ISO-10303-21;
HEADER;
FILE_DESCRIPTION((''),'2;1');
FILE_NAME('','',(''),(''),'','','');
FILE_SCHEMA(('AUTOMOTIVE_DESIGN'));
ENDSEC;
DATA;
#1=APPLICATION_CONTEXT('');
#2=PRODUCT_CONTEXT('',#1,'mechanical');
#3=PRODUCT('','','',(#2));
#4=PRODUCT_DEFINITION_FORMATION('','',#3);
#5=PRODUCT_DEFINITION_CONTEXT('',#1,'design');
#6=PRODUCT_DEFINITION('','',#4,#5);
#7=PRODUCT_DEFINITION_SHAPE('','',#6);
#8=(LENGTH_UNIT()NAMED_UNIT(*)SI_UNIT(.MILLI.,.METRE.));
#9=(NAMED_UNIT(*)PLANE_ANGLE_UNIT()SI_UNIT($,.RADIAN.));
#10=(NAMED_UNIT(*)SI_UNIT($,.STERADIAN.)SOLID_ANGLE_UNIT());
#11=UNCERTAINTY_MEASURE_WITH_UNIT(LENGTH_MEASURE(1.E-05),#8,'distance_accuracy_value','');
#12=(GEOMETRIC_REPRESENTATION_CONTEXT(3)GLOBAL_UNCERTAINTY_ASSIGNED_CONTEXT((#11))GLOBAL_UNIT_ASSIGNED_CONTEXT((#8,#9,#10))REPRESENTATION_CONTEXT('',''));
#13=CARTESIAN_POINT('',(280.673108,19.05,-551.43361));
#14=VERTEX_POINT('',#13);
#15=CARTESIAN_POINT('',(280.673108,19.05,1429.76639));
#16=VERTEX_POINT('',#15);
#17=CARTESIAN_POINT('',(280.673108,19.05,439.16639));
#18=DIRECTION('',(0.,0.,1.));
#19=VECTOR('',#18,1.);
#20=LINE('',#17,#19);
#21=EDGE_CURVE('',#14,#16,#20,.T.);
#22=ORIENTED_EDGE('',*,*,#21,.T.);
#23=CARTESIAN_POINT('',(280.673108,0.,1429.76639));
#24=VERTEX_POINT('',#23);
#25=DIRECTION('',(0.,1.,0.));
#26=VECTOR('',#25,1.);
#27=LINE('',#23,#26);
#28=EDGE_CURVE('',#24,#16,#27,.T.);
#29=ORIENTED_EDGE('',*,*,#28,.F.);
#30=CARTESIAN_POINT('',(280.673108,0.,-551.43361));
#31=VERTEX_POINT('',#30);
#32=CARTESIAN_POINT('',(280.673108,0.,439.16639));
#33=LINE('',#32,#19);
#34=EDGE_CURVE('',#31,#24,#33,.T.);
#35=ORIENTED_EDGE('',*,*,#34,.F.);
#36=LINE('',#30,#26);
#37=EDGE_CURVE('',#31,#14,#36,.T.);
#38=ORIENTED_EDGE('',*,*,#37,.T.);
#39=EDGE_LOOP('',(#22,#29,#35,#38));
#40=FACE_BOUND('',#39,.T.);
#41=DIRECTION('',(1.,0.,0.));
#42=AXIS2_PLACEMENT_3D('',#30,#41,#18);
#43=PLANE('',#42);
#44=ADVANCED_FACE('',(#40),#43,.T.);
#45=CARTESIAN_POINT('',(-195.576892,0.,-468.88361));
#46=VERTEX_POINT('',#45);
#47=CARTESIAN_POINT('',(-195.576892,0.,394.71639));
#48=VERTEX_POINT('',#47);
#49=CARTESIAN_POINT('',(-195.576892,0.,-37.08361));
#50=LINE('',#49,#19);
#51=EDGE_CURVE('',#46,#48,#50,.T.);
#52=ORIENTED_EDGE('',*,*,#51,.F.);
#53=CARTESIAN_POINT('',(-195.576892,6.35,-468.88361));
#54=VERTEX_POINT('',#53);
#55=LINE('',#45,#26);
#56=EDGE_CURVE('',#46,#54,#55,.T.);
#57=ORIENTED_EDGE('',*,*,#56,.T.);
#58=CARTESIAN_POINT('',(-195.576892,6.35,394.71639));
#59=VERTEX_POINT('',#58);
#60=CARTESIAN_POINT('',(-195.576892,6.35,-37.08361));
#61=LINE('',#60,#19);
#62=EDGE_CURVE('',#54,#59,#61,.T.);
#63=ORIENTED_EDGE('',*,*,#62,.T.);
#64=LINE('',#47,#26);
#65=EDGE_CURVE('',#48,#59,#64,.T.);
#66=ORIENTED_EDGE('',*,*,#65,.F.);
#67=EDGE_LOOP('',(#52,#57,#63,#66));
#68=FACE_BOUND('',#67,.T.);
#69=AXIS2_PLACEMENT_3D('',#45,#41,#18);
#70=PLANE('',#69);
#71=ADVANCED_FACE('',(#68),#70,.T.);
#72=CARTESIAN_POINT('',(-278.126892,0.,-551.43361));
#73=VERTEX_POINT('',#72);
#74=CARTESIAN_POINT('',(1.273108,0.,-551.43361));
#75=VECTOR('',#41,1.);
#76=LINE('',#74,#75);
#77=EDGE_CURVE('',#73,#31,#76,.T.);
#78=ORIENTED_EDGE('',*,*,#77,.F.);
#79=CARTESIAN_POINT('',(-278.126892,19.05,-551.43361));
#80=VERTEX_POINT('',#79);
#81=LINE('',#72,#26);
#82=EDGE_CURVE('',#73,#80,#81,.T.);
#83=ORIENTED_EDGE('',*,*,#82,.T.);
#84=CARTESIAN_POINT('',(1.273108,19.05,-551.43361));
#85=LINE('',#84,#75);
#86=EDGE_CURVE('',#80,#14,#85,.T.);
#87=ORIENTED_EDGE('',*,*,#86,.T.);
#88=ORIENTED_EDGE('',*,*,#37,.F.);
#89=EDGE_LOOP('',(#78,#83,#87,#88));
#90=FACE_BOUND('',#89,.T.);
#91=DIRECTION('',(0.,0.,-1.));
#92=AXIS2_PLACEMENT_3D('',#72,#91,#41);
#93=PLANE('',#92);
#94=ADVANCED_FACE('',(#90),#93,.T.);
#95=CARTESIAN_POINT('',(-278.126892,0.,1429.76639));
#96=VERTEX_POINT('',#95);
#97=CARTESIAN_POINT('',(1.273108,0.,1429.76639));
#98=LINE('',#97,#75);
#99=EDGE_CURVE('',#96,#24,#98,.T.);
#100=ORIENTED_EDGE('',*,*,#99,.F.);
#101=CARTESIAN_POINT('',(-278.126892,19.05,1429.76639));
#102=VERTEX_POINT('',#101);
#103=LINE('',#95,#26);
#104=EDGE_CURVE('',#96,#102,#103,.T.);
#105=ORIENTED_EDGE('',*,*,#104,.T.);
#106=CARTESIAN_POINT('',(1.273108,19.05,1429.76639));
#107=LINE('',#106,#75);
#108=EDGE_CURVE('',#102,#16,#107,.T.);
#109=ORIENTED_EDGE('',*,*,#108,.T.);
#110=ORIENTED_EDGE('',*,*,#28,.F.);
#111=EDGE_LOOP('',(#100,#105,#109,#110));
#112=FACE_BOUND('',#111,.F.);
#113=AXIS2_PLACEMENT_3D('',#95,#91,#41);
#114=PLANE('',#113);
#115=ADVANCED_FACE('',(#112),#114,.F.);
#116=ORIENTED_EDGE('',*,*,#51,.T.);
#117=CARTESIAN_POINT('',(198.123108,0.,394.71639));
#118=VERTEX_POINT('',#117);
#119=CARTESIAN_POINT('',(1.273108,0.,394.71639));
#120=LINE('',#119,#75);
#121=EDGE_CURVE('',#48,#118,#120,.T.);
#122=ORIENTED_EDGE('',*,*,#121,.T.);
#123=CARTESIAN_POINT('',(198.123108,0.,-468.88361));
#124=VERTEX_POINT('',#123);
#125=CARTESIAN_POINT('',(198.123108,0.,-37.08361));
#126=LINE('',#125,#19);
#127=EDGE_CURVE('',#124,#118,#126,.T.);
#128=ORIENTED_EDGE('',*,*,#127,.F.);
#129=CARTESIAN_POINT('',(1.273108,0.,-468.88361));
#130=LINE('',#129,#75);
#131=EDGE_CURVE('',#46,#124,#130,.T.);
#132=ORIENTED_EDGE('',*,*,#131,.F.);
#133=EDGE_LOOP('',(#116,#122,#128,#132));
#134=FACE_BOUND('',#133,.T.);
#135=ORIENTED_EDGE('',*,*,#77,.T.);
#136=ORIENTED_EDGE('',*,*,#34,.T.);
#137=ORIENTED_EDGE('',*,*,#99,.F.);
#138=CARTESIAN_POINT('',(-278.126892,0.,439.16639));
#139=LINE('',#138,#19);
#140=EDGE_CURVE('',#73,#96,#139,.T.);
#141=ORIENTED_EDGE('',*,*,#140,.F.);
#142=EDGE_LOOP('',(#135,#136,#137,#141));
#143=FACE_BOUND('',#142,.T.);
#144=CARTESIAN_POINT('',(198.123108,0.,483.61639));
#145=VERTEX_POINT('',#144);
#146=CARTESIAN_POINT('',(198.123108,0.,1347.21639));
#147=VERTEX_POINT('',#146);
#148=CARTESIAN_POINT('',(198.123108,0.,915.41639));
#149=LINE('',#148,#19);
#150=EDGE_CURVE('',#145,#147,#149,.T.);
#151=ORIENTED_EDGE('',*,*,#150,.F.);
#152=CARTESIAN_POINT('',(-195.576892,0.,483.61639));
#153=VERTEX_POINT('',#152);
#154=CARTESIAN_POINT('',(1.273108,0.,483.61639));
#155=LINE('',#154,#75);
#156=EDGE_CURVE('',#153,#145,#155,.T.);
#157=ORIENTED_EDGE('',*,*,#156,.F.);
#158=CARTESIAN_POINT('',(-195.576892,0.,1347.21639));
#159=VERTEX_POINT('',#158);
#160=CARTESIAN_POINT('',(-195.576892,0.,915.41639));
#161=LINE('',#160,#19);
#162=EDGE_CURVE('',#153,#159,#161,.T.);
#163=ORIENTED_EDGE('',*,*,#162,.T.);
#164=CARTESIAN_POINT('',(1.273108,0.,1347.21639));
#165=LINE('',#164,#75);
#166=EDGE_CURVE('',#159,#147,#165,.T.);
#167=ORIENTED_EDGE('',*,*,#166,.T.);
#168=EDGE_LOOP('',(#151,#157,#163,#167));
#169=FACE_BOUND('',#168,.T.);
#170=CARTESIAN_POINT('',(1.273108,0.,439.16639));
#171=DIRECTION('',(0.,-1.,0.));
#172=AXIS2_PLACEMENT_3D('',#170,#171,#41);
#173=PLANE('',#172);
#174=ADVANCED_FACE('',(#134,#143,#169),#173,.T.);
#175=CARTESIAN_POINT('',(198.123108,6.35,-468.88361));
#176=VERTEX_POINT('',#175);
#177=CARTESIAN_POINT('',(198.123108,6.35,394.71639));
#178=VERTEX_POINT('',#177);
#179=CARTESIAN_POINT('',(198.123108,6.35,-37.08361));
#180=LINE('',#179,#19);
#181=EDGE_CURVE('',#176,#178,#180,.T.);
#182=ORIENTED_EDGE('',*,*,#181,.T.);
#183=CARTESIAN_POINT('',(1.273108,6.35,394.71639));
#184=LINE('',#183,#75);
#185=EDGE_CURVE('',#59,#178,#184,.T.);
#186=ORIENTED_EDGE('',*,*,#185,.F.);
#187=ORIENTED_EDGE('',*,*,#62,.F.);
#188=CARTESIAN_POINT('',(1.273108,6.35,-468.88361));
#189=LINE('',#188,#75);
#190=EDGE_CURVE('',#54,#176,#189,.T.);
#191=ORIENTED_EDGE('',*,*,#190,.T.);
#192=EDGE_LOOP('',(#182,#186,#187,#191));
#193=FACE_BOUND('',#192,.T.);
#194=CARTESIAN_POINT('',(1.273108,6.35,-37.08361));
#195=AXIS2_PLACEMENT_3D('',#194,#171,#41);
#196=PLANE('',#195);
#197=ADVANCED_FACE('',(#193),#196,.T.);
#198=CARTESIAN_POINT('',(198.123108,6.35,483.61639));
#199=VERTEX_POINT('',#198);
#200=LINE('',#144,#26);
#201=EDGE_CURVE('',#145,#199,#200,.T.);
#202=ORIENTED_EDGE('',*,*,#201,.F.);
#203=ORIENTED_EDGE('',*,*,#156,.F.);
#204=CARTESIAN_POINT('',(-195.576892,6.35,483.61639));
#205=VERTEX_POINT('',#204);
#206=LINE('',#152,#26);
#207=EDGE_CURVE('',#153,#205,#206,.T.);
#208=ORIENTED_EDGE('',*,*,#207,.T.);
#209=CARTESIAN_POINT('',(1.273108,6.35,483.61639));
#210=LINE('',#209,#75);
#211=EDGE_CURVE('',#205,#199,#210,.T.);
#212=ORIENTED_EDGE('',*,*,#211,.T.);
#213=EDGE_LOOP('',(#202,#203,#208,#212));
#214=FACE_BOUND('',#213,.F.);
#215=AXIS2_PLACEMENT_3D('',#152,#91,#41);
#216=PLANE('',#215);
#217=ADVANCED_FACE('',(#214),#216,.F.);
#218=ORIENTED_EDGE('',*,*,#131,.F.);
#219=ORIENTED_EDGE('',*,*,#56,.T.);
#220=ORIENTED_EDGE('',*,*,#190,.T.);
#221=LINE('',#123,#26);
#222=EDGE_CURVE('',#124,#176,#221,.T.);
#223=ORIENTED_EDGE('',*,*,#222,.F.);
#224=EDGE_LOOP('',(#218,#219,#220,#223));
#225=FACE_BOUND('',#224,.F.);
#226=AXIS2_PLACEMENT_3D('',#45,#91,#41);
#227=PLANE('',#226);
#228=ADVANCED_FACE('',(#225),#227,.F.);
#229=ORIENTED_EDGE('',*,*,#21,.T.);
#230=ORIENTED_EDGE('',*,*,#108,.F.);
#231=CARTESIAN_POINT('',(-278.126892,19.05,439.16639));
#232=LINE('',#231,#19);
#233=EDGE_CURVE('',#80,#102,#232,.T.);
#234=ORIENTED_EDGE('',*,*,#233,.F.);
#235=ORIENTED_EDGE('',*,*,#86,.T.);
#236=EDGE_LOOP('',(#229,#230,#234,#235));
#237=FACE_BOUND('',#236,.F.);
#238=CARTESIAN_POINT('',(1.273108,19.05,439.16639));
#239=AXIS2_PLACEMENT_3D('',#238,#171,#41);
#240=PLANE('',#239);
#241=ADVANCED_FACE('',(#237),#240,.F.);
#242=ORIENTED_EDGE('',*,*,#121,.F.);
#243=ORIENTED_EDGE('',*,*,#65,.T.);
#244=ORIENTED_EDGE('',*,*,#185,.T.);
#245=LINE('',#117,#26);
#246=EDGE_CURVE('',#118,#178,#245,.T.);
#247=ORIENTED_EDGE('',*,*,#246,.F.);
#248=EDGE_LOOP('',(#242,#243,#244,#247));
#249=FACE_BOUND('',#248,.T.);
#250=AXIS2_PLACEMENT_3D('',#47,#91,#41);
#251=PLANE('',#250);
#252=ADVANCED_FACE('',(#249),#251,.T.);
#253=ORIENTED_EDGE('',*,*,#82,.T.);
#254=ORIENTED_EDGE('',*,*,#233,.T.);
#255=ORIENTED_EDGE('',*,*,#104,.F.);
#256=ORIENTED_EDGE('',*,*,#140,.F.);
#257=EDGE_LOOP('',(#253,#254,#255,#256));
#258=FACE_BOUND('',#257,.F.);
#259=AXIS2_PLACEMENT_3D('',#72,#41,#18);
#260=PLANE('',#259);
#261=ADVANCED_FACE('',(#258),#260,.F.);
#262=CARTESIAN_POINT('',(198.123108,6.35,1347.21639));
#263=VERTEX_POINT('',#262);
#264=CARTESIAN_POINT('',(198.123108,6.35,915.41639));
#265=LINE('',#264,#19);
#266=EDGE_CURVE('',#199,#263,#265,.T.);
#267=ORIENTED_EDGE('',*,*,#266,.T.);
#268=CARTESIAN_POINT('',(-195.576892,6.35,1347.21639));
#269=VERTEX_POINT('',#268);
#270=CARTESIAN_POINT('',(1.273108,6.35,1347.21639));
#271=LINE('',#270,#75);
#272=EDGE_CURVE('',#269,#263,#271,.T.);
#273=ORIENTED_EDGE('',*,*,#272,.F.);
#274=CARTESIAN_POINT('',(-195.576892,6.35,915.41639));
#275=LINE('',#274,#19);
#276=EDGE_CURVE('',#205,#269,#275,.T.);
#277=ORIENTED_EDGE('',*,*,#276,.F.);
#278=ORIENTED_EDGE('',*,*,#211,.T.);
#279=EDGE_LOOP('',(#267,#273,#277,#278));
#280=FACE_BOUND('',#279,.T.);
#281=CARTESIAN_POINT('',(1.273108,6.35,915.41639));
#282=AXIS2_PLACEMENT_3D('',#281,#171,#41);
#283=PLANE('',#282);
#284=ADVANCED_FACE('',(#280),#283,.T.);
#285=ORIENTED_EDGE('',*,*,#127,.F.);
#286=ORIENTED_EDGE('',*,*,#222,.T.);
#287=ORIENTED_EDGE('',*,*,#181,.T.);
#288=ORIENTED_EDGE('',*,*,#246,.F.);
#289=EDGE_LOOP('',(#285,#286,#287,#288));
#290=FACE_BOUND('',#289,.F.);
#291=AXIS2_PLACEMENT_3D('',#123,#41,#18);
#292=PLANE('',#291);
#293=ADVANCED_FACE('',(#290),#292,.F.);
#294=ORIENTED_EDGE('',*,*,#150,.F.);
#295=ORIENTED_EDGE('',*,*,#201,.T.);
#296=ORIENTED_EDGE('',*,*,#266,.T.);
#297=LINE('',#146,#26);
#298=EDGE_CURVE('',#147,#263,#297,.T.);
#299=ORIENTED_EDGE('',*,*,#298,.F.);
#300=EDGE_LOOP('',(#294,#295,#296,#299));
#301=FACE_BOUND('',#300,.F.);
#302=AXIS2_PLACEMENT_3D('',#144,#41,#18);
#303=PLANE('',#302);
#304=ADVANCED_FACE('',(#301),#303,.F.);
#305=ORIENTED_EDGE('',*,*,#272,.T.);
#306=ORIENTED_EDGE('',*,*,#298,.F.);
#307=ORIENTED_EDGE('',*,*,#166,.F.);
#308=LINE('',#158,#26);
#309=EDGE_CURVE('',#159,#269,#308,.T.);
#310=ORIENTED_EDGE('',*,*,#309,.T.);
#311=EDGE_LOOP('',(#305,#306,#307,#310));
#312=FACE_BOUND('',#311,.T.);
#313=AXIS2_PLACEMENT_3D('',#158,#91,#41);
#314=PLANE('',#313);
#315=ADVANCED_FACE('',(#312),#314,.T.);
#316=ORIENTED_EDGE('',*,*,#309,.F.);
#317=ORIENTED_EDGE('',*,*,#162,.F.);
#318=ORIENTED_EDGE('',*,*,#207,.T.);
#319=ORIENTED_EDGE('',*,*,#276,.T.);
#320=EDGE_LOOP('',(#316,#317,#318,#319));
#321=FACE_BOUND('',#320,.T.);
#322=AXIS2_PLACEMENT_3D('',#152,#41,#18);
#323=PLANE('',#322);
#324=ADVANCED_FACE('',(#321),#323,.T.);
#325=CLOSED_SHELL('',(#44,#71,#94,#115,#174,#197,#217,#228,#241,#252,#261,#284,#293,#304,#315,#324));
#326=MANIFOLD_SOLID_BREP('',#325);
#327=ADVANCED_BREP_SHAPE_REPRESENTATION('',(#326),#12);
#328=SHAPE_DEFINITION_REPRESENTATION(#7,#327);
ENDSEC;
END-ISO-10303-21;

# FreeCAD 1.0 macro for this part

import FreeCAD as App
import Part
import Sketcher

V = App.Vector
Q = App.Units.Quantity

doc = App.newDocument("Part")
params = doc.addObject("Spreadsheet::Sheet", "Params")
for row, (alias, value) in enumerate([
    ("sketch1_width", "22 in"),
    ("sketch1_height", "78 in"),
    ("pad1_length", "0.75 in"),
    ("sketch2_height", "34 in"),
    ("sketch2_width", "15.5 in"),
    ("pocket1_length", "0.25 in"),
], start=1):
    params.set(f"A{row}", alias)
    params.set(f"B{row}", "=" + value)
    params.setAlias(f"B{row}", alias)

body = doc.addObject("PartDesign::Body", "Body")

sketch1 = body.newObject("Sketcher::SketchObject", "Sketch")
sketch1.AttachmentSupport = (doc.getObject("XZ_Plane"), [""])
sketch1.MapMode = "FlatFace"
sketch1.addGeometry(Part.LineSegment(V(-278, 1430, 0), V(-278, -551, 0)), False)
sketch1.addGeometry(Part.LineSegment(V(-278, -551, 0), V(281, -551, 0)), False)
sketch1.addGeometry(Part.LineSegment(V(281, -551, 0), V(281, 1430, 0)), False)
sketch1.addGeometry(Part.LineSegment(V(281, 1430, 0), V(-278, 1430, 0)), False)
sketch1.addConstraint(Sketcher.Constraint("Coincident", 0, 2, 1, 1))
sketch1.addConstraint(Sketcher.Constraint("Coincident", 1, 2, 2, 1))
sketch1.addConstraint(Sketcher.Constraint("Coincident", 2, 2, 3, 1))
sketch1.addConstraint(Sketcher.Constraint("Coincident", 3, 2, 0, 1))
sketch1.addConstraint(Sketcher.Constraint("Vertical", 0))
sketch1.addConstraint(Sketcher.Constraint("Horizontal", 1))
sketch1.addConstraint(Sketcher.Constraint("Vertical", 2))
sketch1.addConstraint(Sketcher.Constraint("Horizontal", 3))
sketch1.addConstraint(Sketcher.Constraint("DistanceX", 1, 1, 1, 2, Q("22 in")))
sketch1.addConstraint(Sketcher.Constraint("DistanceY", 0, 2, 0, 1, Q("78 in")))
sketch1.addConstraint(Sketcher.Constraint("DistanceX", 0, 2, -1, 1, 278.126892))
sketch1.addConstraint(Sketcher.Constraint("DistanceY", 0, 2, -1, 1, 551.43361))
sketch1.setExpression("Constraints[8]", "Params.sketch1_width")
sketch1.setExpression("Constraints[9]", "Params.sketch1_height")
pad1 = body.newObject("PartDesign::Pad", "Pad")
pad1.Profile = sketch1
pad1.setExpression("Length", "Params.pad1_length")
pad1.Reversed = True

sketch2 = body.newObject("Sketcher::SketchObject", "Sketch001")
sketch2.AttachmentSupport = (doc.getObject("XZ_Plane"), [""])
sketch2.MapMode = "FlatFace"
sketch2.addGeometry(Part.LineSegment(V(-196, 1347, 0), V(-196, 484, 0)), False)
sketch2.addGeometry(Part.LineSegment(V(-196, 484, 0), V(198, 484, 0)), False)
sketch2.addGeometry(Part.LineSegment(V(198, 484, 0), V(198, 1347, 0)), False)
sketch2.addGeometry(Part.LineSegment(V(198, 1347, 0), V(-196, 1347, 0)), False)
sketch2.addGeometry(Part.LineSegment(V(-196, 395, 0), V(-196, -469, 0)), False)
sketch2.addGeometry(Part.LineSegment(V(-196, -469, 0), V(198, -469, 0)), False)
sketch2.addGeometry(Part.LineSegment(V(198, -469, 0), V(198, 395, 0)), False)
sketch2.addGeometry(Part.LineSegment(V(198, 395, 0), V(-196, 395, 0)), False)
sketch2.addConstraint(Sketcher.Constraint("Coincident", 0, 2, 1, 1))
sketch2.addConstraint(Sketcher.Constraint("Coincident", 1, 2, 2, 1))
sketch2.addConstraint(Sketcher.Constraint("Coincident", 2, 2, 3, 1))
sketch2.addConstraint(Sketcher.Constraint("Coincident", 3, 2, 0, 1))
sketch2.addConstraint(Sketcher.Constraint("Coincident", 4, 2, 5, 1))
sketch2.addConstraint(Sketcher.Constraint("Coincident", 5, 2, 6, 1))
sketch2.addConstraint(Sketcher.Constraint("Coincident", 6, 2, 7, 1))
sketch2.addConstraint(Sketcher.Constraint("Coincident", 7, 2, 4, 1))
sketch2.addConstraint(Sketcher.Constraint("Vertical", 0))
sketch2.addConstraint(Sketcher.Constraint("Horizontal", 1))
sketch2.addConstraint(Sketcher.Constraint("Vertical", 2))
sketch2.addConstraint(Sketcher.Constraint("Horizontal", 3))
sketch2.addConstraint(Sketcher.Constraint("Vertical", 4))
sketch2.addConstraint(Sketcher.Constraint("Horizontal", 5))
sketch2.addConstraint(Sketcher.Constraint("Vertical", 6))
sketch2.addConstraint(Sketcher.Constraint("Horizontal", 7))
sketch2.addConstraint(Sketcher.Constraint("Vertical", 3, 2, 4, 2))
sketch2.addConstraint(Sketcher.Constraint("Vertical", 2, 2, 5, 2))
sketch2.addConstraint(Sketcher.Constraint("Equal", 2, 4))
sketch2.addConstraint(Sketcher.Constraint("DistanceY", 0, 2, 0, 1, Q("34 in")))
sketch2.addConstraint(Sketcher.Constraint("DistanceX", 1, 1, 1, 2, Q("15.5 in")))
sketch2.addConstraint(Sketcher.Constraint("DistanceY", 4, 2, 0, 2, Q("37.5 in")))
sketch2.addConstraint(Sketcher.Constraint("DistanceX", 0, 2, -1, 1, 195.576892))
sketch2.addConstraint(Sketcher.Constraint("DistanceY", -1, 1, 0, 2, 483.61639))
sketch2.setExpression("Constraints[19]", "Params.sketch2_height")
sketch2.setExpression("Constraints[20]", "Params.sketch2_width")
pocket1 = body.newObject("PartDesign::Pocket", "Pocket")
pocket1.Profile = sketch2
pocket1.setExpression("Length", "Params.pocket1_length")

doc.recompute()
